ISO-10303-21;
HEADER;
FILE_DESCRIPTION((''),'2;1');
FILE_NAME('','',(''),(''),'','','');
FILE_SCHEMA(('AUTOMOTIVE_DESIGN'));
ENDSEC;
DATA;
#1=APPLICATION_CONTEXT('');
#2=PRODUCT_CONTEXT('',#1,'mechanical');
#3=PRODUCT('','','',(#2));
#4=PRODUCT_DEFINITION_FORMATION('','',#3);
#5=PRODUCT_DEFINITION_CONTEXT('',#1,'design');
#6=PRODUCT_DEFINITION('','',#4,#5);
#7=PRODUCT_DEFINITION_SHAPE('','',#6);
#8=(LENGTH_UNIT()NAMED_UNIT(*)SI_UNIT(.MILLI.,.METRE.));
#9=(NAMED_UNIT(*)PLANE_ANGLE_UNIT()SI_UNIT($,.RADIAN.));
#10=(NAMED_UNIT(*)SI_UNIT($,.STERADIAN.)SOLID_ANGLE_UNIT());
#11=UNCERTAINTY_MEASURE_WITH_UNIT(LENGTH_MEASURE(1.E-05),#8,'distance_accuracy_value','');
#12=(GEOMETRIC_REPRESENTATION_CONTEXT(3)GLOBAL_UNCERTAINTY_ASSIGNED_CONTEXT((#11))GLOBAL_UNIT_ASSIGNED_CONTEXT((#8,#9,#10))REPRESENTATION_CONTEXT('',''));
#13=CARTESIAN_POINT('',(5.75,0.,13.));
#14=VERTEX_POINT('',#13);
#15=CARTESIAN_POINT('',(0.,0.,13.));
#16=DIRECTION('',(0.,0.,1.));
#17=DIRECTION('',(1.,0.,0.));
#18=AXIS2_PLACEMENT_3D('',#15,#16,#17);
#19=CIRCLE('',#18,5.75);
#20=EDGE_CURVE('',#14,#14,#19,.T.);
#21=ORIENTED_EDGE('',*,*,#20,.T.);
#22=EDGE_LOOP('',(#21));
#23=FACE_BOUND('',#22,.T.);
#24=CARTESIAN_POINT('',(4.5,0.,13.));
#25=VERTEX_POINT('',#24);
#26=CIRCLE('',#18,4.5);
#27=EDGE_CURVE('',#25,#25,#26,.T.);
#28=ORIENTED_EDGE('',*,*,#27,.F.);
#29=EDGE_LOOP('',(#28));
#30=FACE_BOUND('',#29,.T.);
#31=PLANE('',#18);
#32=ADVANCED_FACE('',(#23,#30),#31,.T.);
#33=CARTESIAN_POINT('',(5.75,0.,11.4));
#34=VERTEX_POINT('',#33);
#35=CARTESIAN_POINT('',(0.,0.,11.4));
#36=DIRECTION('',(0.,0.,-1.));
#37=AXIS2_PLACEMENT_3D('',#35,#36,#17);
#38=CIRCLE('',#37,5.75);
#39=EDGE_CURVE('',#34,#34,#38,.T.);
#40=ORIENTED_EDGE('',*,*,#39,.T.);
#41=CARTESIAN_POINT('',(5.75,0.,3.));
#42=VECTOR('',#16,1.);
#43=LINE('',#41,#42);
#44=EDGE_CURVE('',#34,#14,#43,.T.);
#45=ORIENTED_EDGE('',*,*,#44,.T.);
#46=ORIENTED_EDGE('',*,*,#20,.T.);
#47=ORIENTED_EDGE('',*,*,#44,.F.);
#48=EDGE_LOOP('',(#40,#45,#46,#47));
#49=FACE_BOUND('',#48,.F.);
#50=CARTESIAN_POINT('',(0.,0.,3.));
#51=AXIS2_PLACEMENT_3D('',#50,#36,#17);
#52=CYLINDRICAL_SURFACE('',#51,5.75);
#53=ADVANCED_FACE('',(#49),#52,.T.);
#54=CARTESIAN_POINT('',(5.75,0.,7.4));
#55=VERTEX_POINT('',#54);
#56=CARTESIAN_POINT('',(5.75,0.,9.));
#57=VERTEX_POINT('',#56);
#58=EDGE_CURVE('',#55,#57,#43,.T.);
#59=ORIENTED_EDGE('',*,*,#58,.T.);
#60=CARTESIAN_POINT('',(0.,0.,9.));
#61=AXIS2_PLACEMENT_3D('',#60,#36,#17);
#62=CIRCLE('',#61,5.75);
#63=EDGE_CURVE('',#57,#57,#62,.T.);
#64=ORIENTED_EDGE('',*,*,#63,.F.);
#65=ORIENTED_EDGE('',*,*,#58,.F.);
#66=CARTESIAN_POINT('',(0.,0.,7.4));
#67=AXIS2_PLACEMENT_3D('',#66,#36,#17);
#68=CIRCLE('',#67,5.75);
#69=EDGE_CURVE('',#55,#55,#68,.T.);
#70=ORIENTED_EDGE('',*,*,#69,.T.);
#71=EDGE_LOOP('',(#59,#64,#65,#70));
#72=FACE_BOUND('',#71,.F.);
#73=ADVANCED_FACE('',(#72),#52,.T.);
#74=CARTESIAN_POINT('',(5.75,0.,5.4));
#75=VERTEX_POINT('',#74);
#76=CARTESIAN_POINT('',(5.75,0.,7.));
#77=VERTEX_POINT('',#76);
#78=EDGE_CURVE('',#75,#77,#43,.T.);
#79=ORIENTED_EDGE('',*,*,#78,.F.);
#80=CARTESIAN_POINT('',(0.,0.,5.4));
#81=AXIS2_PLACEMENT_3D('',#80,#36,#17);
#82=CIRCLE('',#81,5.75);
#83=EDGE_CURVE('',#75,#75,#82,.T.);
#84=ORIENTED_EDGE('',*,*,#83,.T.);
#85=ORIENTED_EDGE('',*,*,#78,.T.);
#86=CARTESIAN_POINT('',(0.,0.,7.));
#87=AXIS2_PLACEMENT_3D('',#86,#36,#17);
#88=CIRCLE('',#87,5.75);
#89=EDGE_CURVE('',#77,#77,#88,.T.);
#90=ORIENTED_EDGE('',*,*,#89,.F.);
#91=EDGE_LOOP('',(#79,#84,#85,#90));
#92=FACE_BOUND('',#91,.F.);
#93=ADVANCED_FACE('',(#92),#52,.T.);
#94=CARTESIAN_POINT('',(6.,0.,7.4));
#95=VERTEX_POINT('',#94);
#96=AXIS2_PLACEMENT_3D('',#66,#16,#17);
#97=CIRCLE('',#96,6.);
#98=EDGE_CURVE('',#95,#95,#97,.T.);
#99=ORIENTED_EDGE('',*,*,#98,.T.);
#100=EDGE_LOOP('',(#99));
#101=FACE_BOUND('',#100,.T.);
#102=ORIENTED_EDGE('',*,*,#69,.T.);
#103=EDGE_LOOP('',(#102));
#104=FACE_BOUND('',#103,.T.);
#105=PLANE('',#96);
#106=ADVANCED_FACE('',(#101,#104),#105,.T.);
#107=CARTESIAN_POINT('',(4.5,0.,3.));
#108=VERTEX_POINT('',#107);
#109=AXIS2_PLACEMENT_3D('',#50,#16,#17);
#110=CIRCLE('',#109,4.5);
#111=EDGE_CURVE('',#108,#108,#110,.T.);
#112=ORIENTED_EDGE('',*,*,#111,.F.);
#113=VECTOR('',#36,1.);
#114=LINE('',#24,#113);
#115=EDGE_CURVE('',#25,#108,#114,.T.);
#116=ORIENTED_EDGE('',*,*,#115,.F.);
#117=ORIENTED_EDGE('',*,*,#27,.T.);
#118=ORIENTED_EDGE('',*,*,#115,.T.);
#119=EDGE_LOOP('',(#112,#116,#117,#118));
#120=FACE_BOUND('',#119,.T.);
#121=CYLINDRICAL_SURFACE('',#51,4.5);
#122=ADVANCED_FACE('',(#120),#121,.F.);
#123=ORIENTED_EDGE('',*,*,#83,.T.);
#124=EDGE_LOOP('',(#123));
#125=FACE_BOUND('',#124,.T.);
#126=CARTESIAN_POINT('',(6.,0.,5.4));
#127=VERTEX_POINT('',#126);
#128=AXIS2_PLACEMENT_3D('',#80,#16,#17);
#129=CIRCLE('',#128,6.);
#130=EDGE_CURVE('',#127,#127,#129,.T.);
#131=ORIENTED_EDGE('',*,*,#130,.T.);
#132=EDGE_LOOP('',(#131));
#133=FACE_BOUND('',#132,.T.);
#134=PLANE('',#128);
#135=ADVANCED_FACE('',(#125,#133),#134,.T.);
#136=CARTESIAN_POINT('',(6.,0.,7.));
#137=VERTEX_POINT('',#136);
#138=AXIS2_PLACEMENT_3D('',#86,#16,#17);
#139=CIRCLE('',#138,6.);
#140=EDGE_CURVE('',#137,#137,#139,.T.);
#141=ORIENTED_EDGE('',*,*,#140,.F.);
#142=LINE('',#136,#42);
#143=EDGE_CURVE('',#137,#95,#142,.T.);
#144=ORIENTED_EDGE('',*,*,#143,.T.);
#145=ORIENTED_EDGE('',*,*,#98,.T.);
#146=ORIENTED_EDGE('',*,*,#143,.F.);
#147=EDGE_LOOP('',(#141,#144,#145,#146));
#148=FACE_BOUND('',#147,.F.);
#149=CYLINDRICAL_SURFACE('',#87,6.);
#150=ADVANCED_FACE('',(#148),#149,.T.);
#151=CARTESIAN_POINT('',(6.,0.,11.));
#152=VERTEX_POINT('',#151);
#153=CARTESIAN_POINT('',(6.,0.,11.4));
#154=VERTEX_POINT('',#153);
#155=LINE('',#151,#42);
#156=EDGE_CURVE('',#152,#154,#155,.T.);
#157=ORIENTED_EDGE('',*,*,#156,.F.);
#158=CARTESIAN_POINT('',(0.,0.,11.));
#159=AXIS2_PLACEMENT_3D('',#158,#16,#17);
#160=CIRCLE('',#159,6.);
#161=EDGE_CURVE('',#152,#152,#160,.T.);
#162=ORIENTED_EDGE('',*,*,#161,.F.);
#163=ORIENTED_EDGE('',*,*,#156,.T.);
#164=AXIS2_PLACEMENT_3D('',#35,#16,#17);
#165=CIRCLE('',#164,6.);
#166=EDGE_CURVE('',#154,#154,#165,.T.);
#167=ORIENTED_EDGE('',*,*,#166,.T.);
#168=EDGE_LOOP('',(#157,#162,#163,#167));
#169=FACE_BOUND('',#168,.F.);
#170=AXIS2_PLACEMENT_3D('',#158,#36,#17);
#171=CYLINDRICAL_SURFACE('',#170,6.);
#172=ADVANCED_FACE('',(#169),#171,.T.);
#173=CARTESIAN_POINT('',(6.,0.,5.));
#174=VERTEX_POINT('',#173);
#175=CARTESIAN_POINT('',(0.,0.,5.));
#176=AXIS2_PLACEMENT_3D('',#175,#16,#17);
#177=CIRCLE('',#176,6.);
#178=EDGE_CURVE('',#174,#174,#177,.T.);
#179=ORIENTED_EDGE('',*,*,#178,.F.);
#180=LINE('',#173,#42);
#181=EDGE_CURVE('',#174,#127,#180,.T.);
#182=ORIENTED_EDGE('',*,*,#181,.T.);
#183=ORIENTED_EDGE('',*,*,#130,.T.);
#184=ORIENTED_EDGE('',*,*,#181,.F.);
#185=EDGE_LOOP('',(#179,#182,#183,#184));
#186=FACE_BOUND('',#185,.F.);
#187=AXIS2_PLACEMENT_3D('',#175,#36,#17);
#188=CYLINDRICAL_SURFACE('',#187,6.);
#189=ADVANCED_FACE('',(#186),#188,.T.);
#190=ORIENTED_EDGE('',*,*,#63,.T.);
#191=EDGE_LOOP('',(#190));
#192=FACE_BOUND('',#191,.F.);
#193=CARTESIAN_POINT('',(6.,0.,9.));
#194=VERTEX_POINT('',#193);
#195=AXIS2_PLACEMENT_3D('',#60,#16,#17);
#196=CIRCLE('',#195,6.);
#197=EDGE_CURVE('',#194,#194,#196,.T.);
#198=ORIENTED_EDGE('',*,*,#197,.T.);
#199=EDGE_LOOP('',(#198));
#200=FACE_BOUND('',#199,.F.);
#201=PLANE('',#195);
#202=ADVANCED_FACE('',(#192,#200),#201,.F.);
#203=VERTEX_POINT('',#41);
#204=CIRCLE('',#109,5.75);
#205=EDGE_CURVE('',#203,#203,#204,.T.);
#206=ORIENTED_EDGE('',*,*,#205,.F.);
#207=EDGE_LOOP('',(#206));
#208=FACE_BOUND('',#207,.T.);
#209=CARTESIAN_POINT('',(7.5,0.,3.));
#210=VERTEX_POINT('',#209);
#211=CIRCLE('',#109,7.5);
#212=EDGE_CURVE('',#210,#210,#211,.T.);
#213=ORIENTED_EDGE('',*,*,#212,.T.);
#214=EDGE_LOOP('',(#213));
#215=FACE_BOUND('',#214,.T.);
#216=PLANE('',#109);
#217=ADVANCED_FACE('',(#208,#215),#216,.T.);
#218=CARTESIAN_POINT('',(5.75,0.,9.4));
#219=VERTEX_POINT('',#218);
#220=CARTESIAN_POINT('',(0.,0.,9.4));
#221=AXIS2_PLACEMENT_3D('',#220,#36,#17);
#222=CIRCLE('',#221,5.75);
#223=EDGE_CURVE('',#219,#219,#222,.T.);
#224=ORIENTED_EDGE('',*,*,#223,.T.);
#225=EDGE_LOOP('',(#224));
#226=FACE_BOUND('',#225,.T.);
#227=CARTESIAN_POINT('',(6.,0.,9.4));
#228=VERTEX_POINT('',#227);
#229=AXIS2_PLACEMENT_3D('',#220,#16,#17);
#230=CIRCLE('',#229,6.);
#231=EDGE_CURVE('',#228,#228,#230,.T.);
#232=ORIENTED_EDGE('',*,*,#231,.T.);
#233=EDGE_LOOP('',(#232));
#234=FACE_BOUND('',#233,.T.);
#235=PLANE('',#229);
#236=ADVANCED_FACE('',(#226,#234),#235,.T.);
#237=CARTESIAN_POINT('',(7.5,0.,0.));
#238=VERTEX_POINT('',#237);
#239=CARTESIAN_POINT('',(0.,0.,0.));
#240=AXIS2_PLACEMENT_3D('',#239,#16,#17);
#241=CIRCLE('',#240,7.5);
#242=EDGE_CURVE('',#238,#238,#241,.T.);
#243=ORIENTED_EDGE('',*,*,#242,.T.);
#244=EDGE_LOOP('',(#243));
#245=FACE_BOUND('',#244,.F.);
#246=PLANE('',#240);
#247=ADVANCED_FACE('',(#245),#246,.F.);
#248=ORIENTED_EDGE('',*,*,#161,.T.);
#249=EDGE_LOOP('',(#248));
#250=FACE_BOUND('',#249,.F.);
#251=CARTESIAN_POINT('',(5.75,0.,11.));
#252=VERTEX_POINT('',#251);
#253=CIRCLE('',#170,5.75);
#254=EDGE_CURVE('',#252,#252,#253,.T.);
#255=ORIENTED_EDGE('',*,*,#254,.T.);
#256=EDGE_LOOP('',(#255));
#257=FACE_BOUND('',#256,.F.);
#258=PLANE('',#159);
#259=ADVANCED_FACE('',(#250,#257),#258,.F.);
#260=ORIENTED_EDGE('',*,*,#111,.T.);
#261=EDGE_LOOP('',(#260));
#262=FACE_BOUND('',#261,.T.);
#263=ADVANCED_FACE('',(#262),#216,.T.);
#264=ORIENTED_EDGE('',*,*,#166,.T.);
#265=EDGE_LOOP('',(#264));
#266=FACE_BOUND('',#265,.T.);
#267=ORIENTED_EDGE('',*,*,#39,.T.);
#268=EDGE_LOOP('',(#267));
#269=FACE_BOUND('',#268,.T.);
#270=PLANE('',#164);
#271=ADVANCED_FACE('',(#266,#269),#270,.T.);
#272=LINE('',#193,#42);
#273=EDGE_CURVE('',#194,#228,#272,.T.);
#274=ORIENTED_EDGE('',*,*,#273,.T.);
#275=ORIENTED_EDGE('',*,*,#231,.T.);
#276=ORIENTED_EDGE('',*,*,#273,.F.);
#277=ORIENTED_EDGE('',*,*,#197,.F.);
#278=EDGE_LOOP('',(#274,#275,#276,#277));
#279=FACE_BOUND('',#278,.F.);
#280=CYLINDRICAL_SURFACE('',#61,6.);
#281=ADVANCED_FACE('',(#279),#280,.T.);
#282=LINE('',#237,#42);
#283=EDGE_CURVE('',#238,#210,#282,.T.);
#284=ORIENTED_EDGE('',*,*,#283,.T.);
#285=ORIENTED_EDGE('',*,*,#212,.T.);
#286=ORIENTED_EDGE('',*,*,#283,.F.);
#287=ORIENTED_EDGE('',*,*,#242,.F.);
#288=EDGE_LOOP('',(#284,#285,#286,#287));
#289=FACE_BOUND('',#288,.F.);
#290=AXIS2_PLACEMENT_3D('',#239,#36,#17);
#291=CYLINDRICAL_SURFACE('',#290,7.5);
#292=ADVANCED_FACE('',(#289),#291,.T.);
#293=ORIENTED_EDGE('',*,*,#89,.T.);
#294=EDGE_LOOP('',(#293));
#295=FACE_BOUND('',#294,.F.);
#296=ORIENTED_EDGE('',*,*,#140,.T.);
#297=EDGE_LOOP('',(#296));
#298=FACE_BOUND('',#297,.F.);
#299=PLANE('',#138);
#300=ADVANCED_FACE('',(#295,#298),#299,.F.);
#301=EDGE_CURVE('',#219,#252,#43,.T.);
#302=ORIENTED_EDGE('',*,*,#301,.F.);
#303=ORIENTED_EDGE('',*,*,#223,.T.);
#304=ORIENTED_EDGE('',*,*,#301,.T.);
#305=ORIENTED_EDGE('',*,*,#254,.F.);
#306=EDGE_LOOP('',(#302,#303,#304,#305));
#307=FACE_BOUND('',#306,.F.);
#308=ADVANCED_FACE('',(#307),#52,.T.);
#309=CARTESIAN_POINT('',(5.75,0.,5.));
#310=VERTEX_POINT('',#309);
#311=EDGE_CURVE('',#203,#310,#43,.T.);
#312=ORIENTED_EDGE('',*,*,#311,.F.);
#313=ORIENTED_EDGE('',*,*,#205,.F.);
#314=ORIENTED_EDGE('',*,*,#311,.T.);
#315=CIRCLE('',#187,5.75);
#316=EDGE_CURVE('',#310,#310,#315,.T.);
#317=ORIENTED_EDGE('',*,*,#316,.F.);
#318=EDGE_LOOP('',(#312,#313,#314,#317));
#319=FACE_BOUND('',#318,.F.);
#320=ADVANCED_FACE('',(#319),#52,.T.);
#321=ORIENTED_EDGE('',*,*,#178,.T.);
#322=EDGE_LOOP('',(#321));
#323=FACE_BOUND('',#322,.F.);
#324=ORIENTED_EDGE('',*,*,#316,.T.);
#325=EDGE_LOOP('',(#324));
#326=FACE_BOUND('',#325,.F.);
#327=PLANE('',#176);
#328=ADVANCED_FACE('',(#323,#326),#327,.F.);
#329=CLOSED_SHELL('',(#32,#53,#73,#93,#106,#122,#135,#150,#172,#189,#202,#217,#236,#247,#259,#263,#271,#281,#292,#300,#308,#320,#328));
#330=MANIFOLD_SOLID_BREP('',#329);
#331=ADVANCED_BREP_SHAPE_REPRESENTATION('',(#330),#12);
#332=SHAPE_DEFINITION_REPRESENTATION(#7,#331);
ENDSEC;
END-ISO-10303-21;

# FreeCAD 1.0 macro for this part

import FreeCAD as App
import Part
import Sketcher

V = App.Vector
Q = App.Units.Quantity

doc = App.newDocument("Part")
body = doc.addObject("PartDesign::Body", "Body")

sketch1 = body.newObject("Sketcher::SketchObject", "Sketch")
sketch1.AttachmentSupport = (doc.getObject("XY_Plane"), [""])
sketch1.MapMode = "FlatFace"
sketch1.addGeometry(Part.Circle(V(0, 0, 0), V(0, 0, 1), 8), False)
sketch1.addConstraint([
    Sketcher.Constraint("Coincident", 0, 3, -1, 1),
    Sketcher.Constraint("Diameter", 0, Q("15 mm")),
])
pad1 = body.newObject("PartDesign::Pad", "Pad")
pad1.Profile = sketch1
pad1.Length = 3

sketch2 = body.newObject("Sketcher::SketchObject", "Sketch001")
sketch2.AttachmentSupport = (doc.getObject("XY_Plane"), [""])
sketch2.MapMode = "FlatFace"
sketch2.AttachmentOffset = App.Placement(V(0, 0, 3), App.Rotation())
sketch2.addGeometry([
    Part.Circle(V(0, 0, 0), V(0, 0, 1), 5.8),
    Part.Circle(V(0, 0, 0), V(0, 0, 1), 4.5),
], False)
sketch2.addConstraint([
    Sketcher.Constraint("Coincident", 0, 3, -1, 1),
    Sketcher.Constraint("Coincident", 1, 3, -1, 1),
    Sketcher.Constraint("Diameter", 1, Q("9 mm")),
    Sketcher.Constraint("Diameter", 0, Q("11.5 mm")),
])
pad2 = body.newObject("PartDesign::Pad", "Pad001")
pad2.Profile = sketch2
pad2.Length = 10

sketch3 = body.newObject("Sketcher::SketchObject", "Sketch002")
sketch3.AttachmentSupport = (doc.getObject("XY_Plane"), [""])
sketch3.MapMode = "FlatFace"
sketch3.AttachmentOffset = App.Placement(V(0, 0, 5), App.Rotation())
sketch3.addGeometry([
    Part.Circle(V(0, 0, 0), V(0, 0, 1), 6),
    Part.Circle(V(0, 0, 0), V(0, 0, 1), 4.5),
], False)
sketch3.addConstraint([
    Sketcher.Constraint("Coincident", 0, 3, -1, 1),
    Sketcher.Constraint("Coincident", 1, 3, -1, 1),
    Sketcher.Constraint("Diameter", 0, Q("12 mm")),
    Sketcher.Constraint("Diameter", 1, Q("9 mm")),
])
pad3 = body.newObject("PartDesign::Pad", "Pad002")
pad3.Profile = sketch3
pad3.Length = 0.4

sketch4 = body.newObject("Sketcher::SketchObject", "Sketch003")
sketch4.AttachmentSupport = (doc.getObject("XY_Plane"), [""])
sketch4.MapMode = "FlatFace"
sketch4.AttachmentOffset = App.Placement(V(0, 0, 7), App.Rotation())
sketch4.addGeometry([
    Part.Circle(V(0, 0, 0), V(0, 0, 1), 6),
    Part.Circle(V(0, 0, 0), V(0, 0, 1), 4.5),
], False)
sketch4.addConstraint([
    Sketcher.Constraint("Coincident", 0, 3, -1, 1),
    Sketcher.Constraint("Coincident", 1, 3, -1, 1),
    Sketcher.Constraint("Diameter", 0, Q("12 mm")),
    Sketcher.Constraint("Diameter", 1, Q("9 mm")),
])
pad4 = body.newObject("PartDesign::Pad", "Pad003")
pad4.Profile = sketch4
pad4.Length = 0.4

sketch5 = body.newObject("Sketcher::SketchObject", "Sketch004")
sketch5.AttachmentSupport = (doc.getObject("XY_Plane"), [""])
sketch5.MapMode = "FlatFace"
sketch5.AttachmentOffset = App.Placement(V(0, 0, 9), App.Rotation())
sketch5.addGeometry([
    Part.Circle(V(0, 0, 0), V(0, 0, 1), 6),
    Part.Circle(V(0, 0, 0), V(0, 0, 1), 4.5),
], False)
sketch5.addConstraint([
    Sketcher.Constraint("Coincident", 0, 3, -1, 1),
    Sketcher.Constraint("Coincident", 1, 3, -1, 1),
    Sketcher.Constraint("Diameter", 0, Q("12 mm")),
    Sketcher.Constraint("Diameter", 1, Q("9 mm")),
])
pad5 = body.newObject("PartDesign::Pad", "Pad004")
pad5.Profile = sketch5
pad5.Length = 0.4

sketch6 = body.newObject("Sketcher::SketchObject", "Sketch005")
sketch6.AttachmentSupport = (doc.getObject("XY_Plane"), [""])
sketch6.MapMode = "FlatFace"
sketch6.AttachmentOffset = App.Placement(V(0, 0, 11), App.Rotation())
sketch6.addGeometry([
    Part.Circle(V(0, 0, 0), V(0, 0, 1), 6),
    Part.Circle(V(0, 0, 0), V(0, 0, 1), 4.5),
], False)
sketch6.addConstraint([
    Sketcher.Constraint("Coincident", 0, 3, -1, 1),
    Sketcher.Constraint("Coincident", 1, 3, -1, 1),
    Sketcher.Constraint("Diameter", 0, Q("12 mm")),
    Sketcher.Constraint("Diameter", 1, Q("9 mm")),
])
pad6 = body.newObject("PartDesign::Pad", "Pad005")
pad6.Profile = sketch6
pad6.Length = 0.4

doc.recompute()
